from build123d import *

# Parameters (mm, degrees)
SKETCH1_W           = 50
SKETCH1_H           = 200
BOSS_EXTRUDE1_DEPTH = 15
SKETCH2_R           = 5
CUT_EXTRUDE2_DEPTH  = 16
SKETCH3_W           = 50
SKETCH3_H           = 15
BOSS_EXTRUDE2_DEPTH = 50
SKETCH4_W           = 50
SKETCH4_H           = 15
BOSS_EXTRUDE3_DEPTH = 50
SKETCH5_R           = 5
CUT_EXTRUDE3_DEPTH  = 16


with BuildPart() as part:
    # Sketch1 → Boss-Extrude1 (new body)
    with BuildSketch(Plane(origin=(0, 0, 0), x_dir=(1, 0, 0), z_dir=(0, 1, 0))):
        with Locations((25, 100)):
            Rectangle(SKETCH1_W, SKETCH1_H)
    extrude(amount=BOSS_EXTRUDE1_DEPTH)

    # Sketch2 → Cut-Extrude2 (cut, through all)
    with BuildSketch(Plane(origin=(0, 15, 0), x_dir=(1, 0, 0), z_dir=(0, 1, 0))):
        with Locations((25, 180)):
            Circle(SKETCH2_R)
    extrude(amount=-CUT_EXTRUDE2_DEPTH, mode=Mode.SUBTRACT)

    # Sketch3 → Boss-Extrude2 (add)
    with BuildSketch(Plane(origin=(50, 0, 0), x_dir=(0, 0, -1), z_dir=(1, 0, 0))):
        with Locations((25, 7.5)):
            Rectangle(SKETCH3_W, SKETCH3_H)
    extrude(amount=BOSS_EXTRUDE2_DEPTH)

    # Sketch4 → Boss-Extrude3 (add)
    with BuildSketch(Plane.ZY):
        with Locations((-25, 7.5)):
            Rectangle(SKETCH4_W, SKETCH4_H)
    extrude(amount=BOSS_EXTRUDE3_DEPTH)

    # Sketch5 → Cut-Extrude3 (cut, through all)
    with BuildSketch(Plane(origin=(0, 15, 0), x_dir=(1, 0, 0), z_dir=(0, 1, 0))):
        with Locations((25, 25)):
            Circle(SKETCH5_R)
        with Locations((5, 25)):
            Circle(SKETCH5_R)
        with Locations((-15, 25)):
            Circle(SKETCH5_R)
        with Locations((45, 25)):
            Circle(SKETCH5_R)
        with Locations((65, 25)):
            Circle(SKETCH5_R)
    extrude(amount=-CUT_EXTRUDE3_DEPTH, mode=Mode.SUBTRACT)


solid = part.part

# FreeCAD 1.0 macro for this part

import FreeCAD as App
import Part
import Sketcher
from FreeCAD import Vector


def add_polygon(sketch, points):
    """Adds a closed chain of lines whose ends are joined by coincident constraints."""
    first, n = sketch.GeometryCount, len(points)
    for a, b in zip(points, points[1:] + points[:1]):
        sketch.addGeometry(Part.LineSegment(App.Vector(*a, 0), App.Vector(*b, 0)), False)
    for i in range(n):
        sketch.addConstraint(Sketcher.Constraint("Coincident", first + i, 2, first + (i + 1) % n, 1))

doc = App.newDocument("Part")
body = doc.addObject("PartDesign::Body", "Body")

sketch1 = body.newObject("Sketcher::SketchObject", "Sketch")
sketch1.AttachmentSupport = (doc.getObject("XZ_Plane"), [""])
sketch1.MapMode = "FlatFace"
add_polygon(sketch1, [(0, -200), (0, 0), (50, 0), (50, -200)])
sketch1.addConstraint(Sketcher.Constraint("Vertical", 0))
sketch1.addConstraint(Sketcher.Constraint("Horizontal", 1))
sketch1.addConstraint(Sketcher.Constraint("Vertical", 2))
sketch1.addConstraint(Sketcher.Constraint("Horizontal", 3))
sketch1.addConstraint(Sketcher.Constraint("Coincident", 0, 2, -1, 1))
sketch1.addConstraint(Sketcher.Constraint("DistanceX", 1, 1, 1, 2, 50.0))
sketch1.addConstraint(Sketcher.Constraint("DistanceY", 0, 1, 0, 2, 200.0))
pad1 = body.newObject("PartDesign::Pad", "Pad")
pad1.Profile = sketch1
pad1.Length = 15
pad1.Reversed = True

sketch2 = body.newObject("Sketcher::SketchObject", "Sketch001")
sketch2.AttachmentSupport = (doc.getObject("XZ_Plane"), [""])
sketch2.MapMode = "FlatFace"
sketch2.AttachmentOffset = App.Placement(Vector(0, 0, -15), App.Rotation())
sketch2.addGeometry(Part.Circle(Vector(25, -180, 0), Vector(0, 0, 1), 5), False)
sketch2.addConstraint(Sketcher.Constraint("Diameter", 0, 10.0))
sketch2.addConstraint(Sketcher.Constraint("DistanceX", -1, 1, 0, 3, 25.0))
sketch2.addConstraint(Sketcher.Constraint("DistanceY", 0, 3, -1, 1, 180.0))
pocket1 = body.newObject("PartDesign::Pocket", "Pocket")
pocket1.Profile = sketch2
pocket1.Type = "ThroughAll"
pocket1.Reversed = True

sketch3 = body.newObject("Sketcher::SketchObject", "Sketch002")
sketch3.AttachmentSupport = (doc.getObject("YZ_Plane"), [""])
sketch3.MapMode = "FlatFace"
sketch3.AttachmentOffset = App.Placement(Vector(0, 0, 50), App.Rotation())
add_polygon(sketch3, [(15, 0), (0, 0), (0, -50), (15, -50)])
sketch3.addConstraint(Sketcher.Constraint("Horizontal", 0))
sketch3.addConstraint(Sketcher.Constraint("Vertical", 1))
sketch3.addConstraint(Sketcher.Constraint("Horizontal", 2))
sketch3.addConstraint(Sketcher.Constraint("Vertical", 3))
sketch3.addConstraint(Sketcher.Constraint("Coincident", 0, 2, -1, 1))
sketch3.addConstraint(Sketcher.Constraint("DistanceX", 0, 2, 0, 1, 15.0))
sketch3.addConstraint(Sketcher.Constraint("DistanceY", 1, 2, 1, 1, 50.0))
pad2 = body.newObject("PartDesign::Pad", "Pad001")
pad2.Profile = sketch3
pad2.Length = 50

sketch4 = body.newObject("Sketcher::SketchObject", "Sketch003")
sketch4.AttachmentSupport = (doc.getObject("YZ_Plane"), [""])
sketch4.MapMode = "FlatFace"
add_polygon(sketch4, [(15, -50), (0, -50), (0, 0), (15, 0)])
sketch4.addConstraint(Sketcher.Constraint("Horizontal", 0))
sketch4.addConstraint(Sketcher.Constraint("Vertical", 1))
sketch4.addConstraint(Sketcher.Constraint("Horizontal", 2))
sketch4.addConstraint(Sketcher.Constraint("Vertical", 3))
sketch4.addConstraint(Sketcher.Constraint("Coincident", 1, 2, -1, 1))
sketch4.addConstraint(Sketcher.Constraint("DistanceX", 0, 2, 0, 1, 15.0))
sketch4.addConstraint(Sketcher.Constraint("DistanceY", 1, 1, 1, 2, 50.0))
pad3 = body.newObject("PartDesign::Pad", "Pad002")
pad3.Profile = sketch4
pad3.Length = 50
pad3.Reversed = True

sketch5 = body.newObject("Sketcher::SketchObject", "Sketch004")
sketch5.AttachmentSupport = (doc.getObject("XZ_Plane"), [""])
sketch5.MapMode = "FlatFace"
sketch5.AttachmentOffset = App.Placement(Vector(0, 0, -15), App.Rotation())
sketch5.addGeometry(Part.Circle(Vector(25, -25, 0), Vector(0, 0, 1), 5), False)
sketch5.addGeometry(Part.Circle(Vector(5, -25, 0), Vector(0, 0, 1), 5), False)
sketch5.addGeometry(Part.Circle(Vector(-15, -25, 0), Vector(0, 0, 1), 5), False)
sketch5.addGeometry(Part.Circle(Vector(45, -25, 0), Vector(0, 0, 1), 5), False)
sketch5.addGeometry(Part.Circle(Vector(65, -25, 0), Vector(0, 0, 1), 5), False)
sketch5.addConstraint(Sketcher.Constraint("Equal", 0, 1))
sketch5.addConstraint(Sketcher.Constraint("Equal", 1, 2))
sketch5.addConstraint(Sketcher.Constraint("Equal", 2, 3))
sketch5.addConstraint(Sketcher.Constraint("Equal", 3, 4))
sketch5.addConstraint(Sketcher.Constraint("Horizontal", 0, 3, 1, 3))
sketch5.addConstraint(Sketcher.Constraint("Horizontal", 1, 3, 2, 3))
sketch5.addConstraint(Sketcher.Constraint("Horizontal", 2, 3, 3, 3))
sketch5.addConstraint(Sketcher.Constraint("Horizontal", 3, 3, 4, 3))
sketch5.addConstraint(Sketcher.Constraint("Diameter", 0, 10.0))
sketch5.addConstraint(Sketcher.Constraint("DistanceX", -1, 1, 0, 3, 25.0))
sketch5.addConstraint(Sketcher.Constraint("DistanceY", 0, 3, -1, 1, 25.0))
sketch5.addConstraint(Sketcher.Constraint("DistanceX", -1, 1, 1, 3, 5.0))
sketch5.addConstraint(Sketcher.Constraint("DistanceX", 2, 3, -1, 1, 15.0))
sketch5.addConstraint(Sketcher.Constraint("DistanceX", -1, 1, 3, 3, 45.0))
sketch5.addConstraint(Sketcher.Constraint("DistanceX", -1, 1, 4, 3, 65.0))
pocket2 = body.newObject("PartDesign::Pocket", "Pocket001")
pocket2.Profile = sketch5
pocket2.Type = "ThroughAll"
pocket2.Reversed = True

doc.recompute()
